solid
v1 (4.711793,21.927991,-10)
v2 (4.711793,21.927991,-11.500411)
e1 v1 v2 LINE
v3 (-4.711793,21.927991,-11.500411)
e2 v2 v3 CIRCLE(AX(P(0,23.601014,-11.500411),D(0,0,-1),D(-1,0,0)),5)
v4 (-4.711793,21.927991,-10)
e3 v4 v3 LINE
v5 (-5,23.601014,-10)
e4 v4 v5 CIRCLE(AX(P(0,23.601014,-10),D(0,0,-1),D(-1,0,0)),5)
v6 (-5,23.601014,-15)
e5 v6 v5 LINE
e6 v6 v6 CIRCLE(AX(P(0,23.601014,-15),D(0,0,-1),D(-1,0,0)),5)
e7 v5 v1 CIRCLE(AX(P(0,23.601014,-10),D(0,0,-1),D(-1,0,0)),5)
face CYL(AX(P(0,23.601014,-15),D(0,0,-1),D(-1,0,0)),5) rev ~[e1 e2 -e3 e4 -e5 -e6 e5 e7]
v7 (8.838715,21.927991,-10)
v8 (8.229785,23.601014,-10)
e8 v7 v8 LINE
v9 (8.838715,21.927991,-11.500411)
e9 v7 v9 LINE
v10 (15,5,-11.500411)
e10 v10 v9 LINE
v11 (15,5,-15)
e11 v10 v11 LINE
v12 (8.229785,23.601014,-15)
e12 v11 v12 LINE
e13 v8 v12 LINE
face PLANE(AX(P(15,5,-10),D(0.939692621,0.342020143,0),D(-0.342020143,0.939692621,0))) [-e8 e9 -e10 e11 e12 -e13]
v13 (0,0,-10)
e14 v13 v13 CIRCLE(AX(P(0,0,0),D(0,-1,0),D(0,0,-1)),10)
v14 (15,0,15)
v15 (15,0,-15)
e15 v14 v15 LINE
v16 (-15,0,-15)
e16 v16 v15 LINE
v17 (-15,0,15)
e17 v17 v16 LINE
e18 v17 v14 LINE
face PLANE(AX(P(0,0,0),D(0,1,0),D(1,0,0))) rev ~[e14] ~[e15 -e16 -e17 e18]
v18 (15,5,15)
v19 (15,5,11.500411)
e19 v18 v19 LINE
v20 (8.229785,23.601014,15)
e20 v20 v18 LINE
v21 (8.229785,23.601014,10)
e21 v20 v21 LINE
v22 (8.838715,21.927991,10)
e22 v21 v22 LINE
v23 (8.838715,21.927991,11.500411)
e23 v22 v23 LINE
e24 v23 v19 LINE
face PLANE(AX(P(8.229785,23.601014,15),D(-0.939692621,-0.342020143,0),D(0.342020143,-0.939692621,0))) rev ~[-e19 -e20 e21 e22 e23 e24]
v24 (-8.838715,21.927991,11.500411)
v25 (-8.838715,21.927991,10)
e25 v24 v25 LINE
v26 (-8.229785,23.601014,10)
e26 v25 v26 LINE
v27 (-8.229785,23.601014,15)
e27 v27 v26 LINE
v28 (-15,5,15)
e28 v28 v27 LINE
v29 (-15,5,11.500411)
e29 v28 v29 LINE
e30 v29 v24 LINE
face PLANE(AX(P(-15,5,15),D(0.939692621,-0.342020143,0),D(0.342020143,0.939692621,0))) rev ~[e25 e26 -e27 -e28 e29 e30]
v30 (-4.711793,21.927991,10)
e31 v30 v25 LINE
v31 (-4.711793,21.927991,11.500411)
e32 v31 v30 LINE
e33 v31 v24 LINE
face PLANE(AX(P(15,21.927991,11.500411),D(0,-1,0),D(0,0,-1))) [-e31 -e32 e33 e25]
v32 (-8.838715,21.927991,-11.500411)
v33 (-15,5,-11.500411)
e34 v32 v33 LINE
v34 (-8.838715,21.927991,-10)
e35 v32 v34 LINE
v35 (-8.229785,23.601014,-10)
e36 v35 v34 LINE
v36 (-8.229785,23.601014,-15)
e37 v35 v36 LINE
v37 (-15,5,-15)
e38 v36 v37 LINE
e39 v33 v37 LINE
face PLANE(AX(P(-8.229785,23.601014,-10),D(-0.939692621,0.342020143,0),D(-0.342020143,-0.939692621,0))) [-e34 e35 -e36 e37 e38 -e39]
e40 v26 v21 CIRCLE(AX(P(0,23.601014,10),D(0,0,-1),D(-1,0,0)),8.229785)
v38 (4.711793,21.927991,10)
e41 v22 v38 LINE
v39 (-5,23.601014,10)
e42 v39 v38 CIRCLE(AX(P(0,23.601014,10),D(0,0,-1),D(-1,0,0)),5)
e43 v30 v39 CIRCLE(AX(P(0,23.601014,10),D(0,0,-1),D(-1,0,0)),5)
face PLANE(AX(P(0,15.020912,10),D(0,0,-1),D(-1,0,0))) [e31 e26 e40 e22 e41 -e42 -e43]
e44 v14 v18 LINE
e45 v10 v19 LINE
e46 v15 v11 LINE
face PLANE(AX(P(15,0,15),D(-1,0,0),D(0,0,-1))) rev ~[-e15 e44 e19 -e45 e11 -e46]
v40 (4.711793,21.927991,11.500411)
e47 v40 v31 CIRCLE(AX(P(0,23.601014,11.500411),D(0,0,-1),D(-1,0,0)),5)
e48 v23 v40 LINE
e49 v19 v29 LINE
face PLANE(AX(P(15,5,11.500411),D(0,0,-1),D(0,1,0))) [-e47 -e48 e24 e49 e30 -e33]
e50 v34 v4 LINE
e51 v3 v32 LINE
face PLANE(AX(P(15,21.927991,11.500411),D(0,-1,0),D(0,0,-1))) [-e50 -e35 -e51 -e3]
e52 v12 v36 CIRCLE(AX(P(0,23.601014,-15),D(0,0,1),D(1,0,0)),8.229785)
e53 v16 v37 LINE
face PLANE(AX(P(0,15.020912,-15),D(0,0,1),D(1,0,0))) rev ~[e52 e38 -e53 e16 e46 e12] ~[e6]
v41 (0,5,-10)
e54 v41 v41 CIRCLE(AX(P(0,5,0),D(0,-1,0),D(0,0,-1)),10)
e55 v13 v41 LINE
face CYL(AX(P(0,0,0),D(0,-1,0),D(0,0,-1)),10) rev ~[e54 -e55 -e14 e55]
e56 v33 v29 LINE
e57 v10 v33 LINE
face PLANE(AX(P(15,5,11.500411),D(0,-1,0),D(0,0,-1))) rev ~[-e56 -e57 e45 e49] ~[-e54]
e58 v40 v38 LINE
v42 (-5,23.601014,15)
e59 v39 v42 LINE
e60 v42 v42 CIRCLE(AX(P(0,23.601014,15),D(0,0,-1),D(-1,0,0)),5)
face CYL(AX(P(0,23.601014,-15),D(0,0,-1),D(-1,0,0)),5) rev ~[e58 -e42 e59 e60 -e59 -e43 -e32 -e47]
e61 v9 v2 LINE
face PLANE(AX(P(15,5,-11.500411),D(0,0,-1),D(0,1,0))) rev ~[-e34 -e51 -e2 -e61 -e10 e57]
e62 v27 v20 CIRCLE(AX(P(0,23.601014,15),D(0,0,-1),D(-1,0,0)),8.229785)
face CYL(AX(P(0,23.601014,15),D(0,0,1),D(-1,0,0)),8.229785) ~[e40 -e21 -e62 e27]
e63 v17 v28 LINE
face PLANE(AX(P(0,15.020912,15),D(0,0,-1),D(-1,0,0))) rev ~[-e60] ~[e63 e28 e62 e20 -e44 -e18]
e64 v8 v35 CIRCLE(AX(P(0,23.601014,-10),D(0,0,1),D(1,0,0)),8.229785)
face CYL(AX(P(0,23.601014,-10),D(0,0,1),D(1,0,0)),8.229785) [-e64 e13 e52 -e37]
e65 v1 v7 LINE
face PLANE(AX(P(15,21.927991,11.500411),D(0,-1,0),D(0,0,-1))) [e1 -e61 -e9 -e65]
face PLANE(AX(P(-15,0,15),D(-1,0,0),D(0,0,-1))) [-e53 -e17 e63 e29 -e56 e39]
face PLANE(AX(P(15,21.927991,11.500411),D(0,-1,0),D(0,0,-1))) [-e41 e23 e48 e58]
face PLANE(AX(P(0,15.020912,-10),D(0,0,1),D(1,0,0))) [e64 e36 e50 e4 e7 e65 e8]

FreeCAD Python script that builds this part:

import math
import FreeCAD as App
import Part
import Sketcher
from FreeCAD import Vector
Q = App.Units.Quantity

doc = App.newDocument("Part")
body = doc.addObject("PartDesign::Body", "Body")

# Sketch on XZ plane
sketch1 = body.newObject("Sketcher::SketchObject", "Sketch")
sketch1.AttachmentSupport = (doc.getObject("XZ_Plane"), [""])
sketch1.MapMode = "FlatFace"
sketch1.addGeometry(Part.LineSegment(Vector(-15, -15, 0), Vector(-15, 15, 0)), False)
sketch1.addGeometry(Part.LineSegment(Vector(-15, 15, 0), Vector(15, 15, 0)), False)
sketch1.addGeometry(Part.LineSegment(Vector(15, 15, 0), Vector(15, -15, 0)), False)
sketch1.addGeometry(Part.LineSegment(Vector(15, -15, 0), Vector(-15, -15, 0)), False)
sketch1.addConstraint(Sketcher.Constraint("Coincident", 0, 2, 1, 1))
sketch1.addConstraint(Sketcher.Constraint("Coincident", 1, 2, 2, 1))
sketch1.addConstraint(Sketcher.Constraint("Coincident", 2, 2, 3, 1))
sketch1.addConstraint(Sketcher.Constraint("Coincident", 3, 2, 0, 1))
sketch1.addConstraint(Sketcher.Constraint("Vertical", 0))
sketch1.addConstraint(Sketcher.Constraint("Horizontal", 1))
sketch1.addConstraint(Sketcher.Constraint("Vertical", 2))
sketch1.addConstraint(Sketcher.Constraint("Horizontal", 3))
sketch1.addConstraint(Sketcher.Constraint("Symmetric", 0, 2, 2, 2, -1, 1))
sketch1.addConstraint(Sketcher.Constraint("Equal", 3, 0))
sketch1.addConstraint(Sketcher.Constraint("DistanceX", 1, 1, 1, 2, Q("30 mm")))
pad1 = body.newObject("PartDesign::Pad", "Pad")
pad1.Profile = sketch1
pad1.Length = 5
pad1.Reversed = True

# Sketch on XY plane
sketch2 = body.newObject("Sketcher::SketchObject", "Sketch001")
sketch2.AttachmentSupport = (doc.getObject("XY_Plane"), [""])
sketch2.MapMode = "FlatFace"
sketch2.AttachmentOffset = App.Placement(Vector(0, 0, 15), App.Rotation())
sketch2.addGeometry(Part.LineSegment(Vector(-8.229785, 23.601014, 0), Vector(-15, 5, 0)), False)
sketch2.addGeometry(Part.LineSegment(Vector(-15, 5, 0), Vector(15, 5, 0)), False)
sketch2.addGeometry(Part.LineSegment(Vector(15, 5, 0), Vector(8.229785, 23.601014, 0)), False)
sketch2.addGeometry(Part.ArcOfCircle(Part.Circle(Vector(0, 23.601014, 0), Vector(0, 0, 1), 8.229785), math.radians(0), math.radians(180)), False)
sketch2.addConstraint(Sketcher.Constraint("Coincident", 0, 2, 1, 1))
sketch2.addConstraint(Sketcher.Constraint("Coincident", 1, 2, 2, 1))
sketch2.addConstraint(Sketcher.Constraint("Coincident", 2, 2, 3, 1))
sketch2.addConstraint(Sketcher.Constraint("Coincident", 3, 2, 0, 1))
sketch2.addConstraint(Sketcher.Constraint("Horizontal", 1))
sketch2.addConstraint(Sketcher.Constraint("Symmetric", 2, 2, 3, 2, -2))
sketch2.addConstraint(Sketcher.Constraint("Horizontal", 3, 3, 2, 2))
sketch2.addConstraint(Sketcher.Constraint("Equal", 0, 2))
sketch2.addConstraint(Sketcher.Constraint("DistanceX", 1, 1, 1, 2, Q("30 mm")))
sketch2.addConstraint(Sketcher.Constraint("Angle", 0, Q("-110 deg")))
sketch2.addConstraint(Sketcher.Constraint("DistanceY", -1, 1, 0, 2, Q("5 mm")))
sketch2.addConstraint(Sketcher.Constraint("Radius", 3, Q("8.229785 mm")))
pad2 = body.newObject("PartDesign::Pad", "Pad001")
pad2.Profile = sketch2
pad2.Length = 5
pad2.Reversed = True

# Sketch on XY plane
sketch3 = body.newObject("Sketcher::SketchObject", "Sketch002")
sketch3.AttachmentSupport = (doc.getObject("XY_Plane"), [""])
sketch3.MapMode = "FlatFace"
sketch3.AttachmentOffset = App.Placement(Vector(0, 0, -10), App.Rotation())
sketch3.addGeometry(Part.LineSegment(Vector(8.229785, 23.601014, 0), Vector(15, 5, 0)), False)
sketch3.addGeometry(Part.LineSegment(Vector(15, 5, 0), Vector(-15, 5, 0)), False)
sketch3.addGeometry(Part.LineSegment(Vector(-15, 5, 0), Vector(-8.229785, 23.601014, 0)), False)
sketch3.addGeometry(Part.ArcOfCircle(Part.Circle(Vector(0, 23.601014, 0), Vector(0, 0, 1), 8.229785), math.radians(0), math.radians(180)), False)
sketch3.addConstraint(Sketcher.Constraint("Coincident", 0, 2, 1, 1))
sketch3.addConstraint(Sketcher.Constraint("Coincident", 1, 2, 2, 1))
sketch3.addConstraint(Sketcher.Constraint("Coincident", 2, 2, 3, 2))
sketch3.addConstraint(Sketcher.Constraint("Coincident", 3, 1, 0, 1))
sketch3.addConstraint(Sketcher.Constraint("Horizontal", 1))
sketch3.addConstraint(Sketcher.Constraint("Symmetric", 2, 2, 3, 1, -2))
sketch3.addConstraint(Sketcher.Constraint("Horizontal", 3, 3, 2, 2))
sketch3.addConstraint(Sketcher.Constraint("Equal", 0, 2))
sketch3.addConstraint(Sketcher.Constraint("DistanceX", 1, 2, 1, 1, Q("30 mm")))
sketch3.addConstraint(Sketcher.Constraint("Angle", 0, Q("-70 deg")))
sketch3.addConstraint(Sketcher.Constraint("DistanceY", -1, 1, 0, 2, Q("5 mm")))
sketch3.addConstraint(Sketcher.Constraint("Radius", 3, Q("8.229785 mm")))
pad3 = body.newObject("PartDesign::Pad", "Pad002")
pad3.Profile = sketch3
pad3.Length = 5
pad3.Reversed = True

# Sketch on XY plane
sketch4 = body.newObject("Sketcher::SketchObject", "Sketch003")
sketch4.AttachmentSupport = (doc.getObject("XY_Plane"), [""])
sketch4.MapMode = "FlatFace"
sketch4.AttachmentOffset = App.Placement(Vector(0, 0, -15), App.Rotation())
sketch4.addGeometry(Part.Circle(Vector(0, 23.601014, 0), Vector(0, 0, 1), 5), False)
sketch4.addConstraint(Sketcher.Constraint("PointOnObject", 0, 3, -2))
sketch4.addConstraint(Sketcher.Constraint("Diameter", 0, Q("10 mm")))
sketch4.addConstraint(Sketcher.Constraint("DistanceY", -1, 1, 0, 3, Q("23.601014 mm")))
pocket1 = body.newObject("PartDesign::Pocket", "Pocket")
pocket1.Profile = sketch4
pocket1.Length = 38
pocket1.Reversed = True

# Sketch on XZ plane
sketch5 = body.newObject("Sketcher::SketchObject", "Sketch004")
sketch5.AttachmentSupport = (doc.getObject("XZ_Plane"), [""])
sketch5.MapMode = "FlatFace"
sketch5.addGeometry(Part.Circle(Vector(0, 0, 0), Vector(0, 0, 1), 10), False)
sketch5.addConstraint(Sketcher.Constraint("Coincident", 0, 3, -1, 1))
sketch5.addConstraint(Sketcher.Constraint("Diameter", 0, Q("20 mm")))
pocket2 = body.newObject("PartDesign::Pocket", "Pocket001")
pocket2.Profile = sketch5
pocket2.Length = 5

# Sketch on YZ plane
sketch6 = body.newObject("Sketcher::SketchObject", "Sketch005")
sketch6.AttachmentSupport = (doc.getObject("YZ_Plane"), [""])
sketch6.MapMode = "FlatFace"
sketch6.AttachmentOffset = App.Placement(Vector(0, 0, 15), App.Rotation())
sketch6.addGeometry(Part.LineSegment(Vector(21.927991, 11.500411, 0), Vector(5, 11.500411, 0)), False)
sketch6.addGeometry(Part.LineSegment(Vector(5, 11.500411, 0), Vector(5, -11.500411, 0)), False)
sketch6.addGeometry(Part.LineSegment(Vector(5, -11.500411, 0), Vector(21.927991, -11.500411, 0)), False)
sketch6.addGeometry(Part.LineSegment(Vector(21.927991, -11.500411, 0), Vector(21.927991, 11.500411, 0)), False)
sketch6.addConstraint(Sketcher.Constraint("Coincident", 0, 2, 1, 1))
sketch6.addConstraint(Sketcher.Constraint("Coincident", 1, 2, 2, 1))
sketch6.addConstraint(Sketcher.Constraint("Coincident", 2, 2, 3, 1))
sketch6.addConstraint(Sketcher.Constraint("Coincident", 3, 2, 0, 1))
sketch6.addConstraint(Sketcher.Constraint("Horizontal", 0))
sketch6.addConstraint(Sketcher.Constraint("Vertical", 1))
sketch6.addConstraint(Sketcher.Constraint("Horizontal", 2))
sketch6.addConstraint(Sketcher.Constraint("Vertical", 3))
sketch6.addConstraint(Sketcher.Constraint("DistanceX", -1, 1, 0, 2, Q("5 mm")))
sketch6.addConstraint(Sketcher.Constraint("DistanceX", 0, 2, 0, 1, Q("16.927991 mm")))
sketch6.addConstraint(Sketcher.Constraint("DistanceY", 1, 2, 1, 1, Q("23.000823 mm")))
sketch6.addConstraint(Sketcher.Constraint("DistanceY", -1, 1, 0, 2, Q("11.500411 mm")))
pocket3 = body.newObject("PartDesign::Pocket", "Pocket002")
pocket3.Profile = sketch6
pocket3.Length = 30

doc.recompute()
